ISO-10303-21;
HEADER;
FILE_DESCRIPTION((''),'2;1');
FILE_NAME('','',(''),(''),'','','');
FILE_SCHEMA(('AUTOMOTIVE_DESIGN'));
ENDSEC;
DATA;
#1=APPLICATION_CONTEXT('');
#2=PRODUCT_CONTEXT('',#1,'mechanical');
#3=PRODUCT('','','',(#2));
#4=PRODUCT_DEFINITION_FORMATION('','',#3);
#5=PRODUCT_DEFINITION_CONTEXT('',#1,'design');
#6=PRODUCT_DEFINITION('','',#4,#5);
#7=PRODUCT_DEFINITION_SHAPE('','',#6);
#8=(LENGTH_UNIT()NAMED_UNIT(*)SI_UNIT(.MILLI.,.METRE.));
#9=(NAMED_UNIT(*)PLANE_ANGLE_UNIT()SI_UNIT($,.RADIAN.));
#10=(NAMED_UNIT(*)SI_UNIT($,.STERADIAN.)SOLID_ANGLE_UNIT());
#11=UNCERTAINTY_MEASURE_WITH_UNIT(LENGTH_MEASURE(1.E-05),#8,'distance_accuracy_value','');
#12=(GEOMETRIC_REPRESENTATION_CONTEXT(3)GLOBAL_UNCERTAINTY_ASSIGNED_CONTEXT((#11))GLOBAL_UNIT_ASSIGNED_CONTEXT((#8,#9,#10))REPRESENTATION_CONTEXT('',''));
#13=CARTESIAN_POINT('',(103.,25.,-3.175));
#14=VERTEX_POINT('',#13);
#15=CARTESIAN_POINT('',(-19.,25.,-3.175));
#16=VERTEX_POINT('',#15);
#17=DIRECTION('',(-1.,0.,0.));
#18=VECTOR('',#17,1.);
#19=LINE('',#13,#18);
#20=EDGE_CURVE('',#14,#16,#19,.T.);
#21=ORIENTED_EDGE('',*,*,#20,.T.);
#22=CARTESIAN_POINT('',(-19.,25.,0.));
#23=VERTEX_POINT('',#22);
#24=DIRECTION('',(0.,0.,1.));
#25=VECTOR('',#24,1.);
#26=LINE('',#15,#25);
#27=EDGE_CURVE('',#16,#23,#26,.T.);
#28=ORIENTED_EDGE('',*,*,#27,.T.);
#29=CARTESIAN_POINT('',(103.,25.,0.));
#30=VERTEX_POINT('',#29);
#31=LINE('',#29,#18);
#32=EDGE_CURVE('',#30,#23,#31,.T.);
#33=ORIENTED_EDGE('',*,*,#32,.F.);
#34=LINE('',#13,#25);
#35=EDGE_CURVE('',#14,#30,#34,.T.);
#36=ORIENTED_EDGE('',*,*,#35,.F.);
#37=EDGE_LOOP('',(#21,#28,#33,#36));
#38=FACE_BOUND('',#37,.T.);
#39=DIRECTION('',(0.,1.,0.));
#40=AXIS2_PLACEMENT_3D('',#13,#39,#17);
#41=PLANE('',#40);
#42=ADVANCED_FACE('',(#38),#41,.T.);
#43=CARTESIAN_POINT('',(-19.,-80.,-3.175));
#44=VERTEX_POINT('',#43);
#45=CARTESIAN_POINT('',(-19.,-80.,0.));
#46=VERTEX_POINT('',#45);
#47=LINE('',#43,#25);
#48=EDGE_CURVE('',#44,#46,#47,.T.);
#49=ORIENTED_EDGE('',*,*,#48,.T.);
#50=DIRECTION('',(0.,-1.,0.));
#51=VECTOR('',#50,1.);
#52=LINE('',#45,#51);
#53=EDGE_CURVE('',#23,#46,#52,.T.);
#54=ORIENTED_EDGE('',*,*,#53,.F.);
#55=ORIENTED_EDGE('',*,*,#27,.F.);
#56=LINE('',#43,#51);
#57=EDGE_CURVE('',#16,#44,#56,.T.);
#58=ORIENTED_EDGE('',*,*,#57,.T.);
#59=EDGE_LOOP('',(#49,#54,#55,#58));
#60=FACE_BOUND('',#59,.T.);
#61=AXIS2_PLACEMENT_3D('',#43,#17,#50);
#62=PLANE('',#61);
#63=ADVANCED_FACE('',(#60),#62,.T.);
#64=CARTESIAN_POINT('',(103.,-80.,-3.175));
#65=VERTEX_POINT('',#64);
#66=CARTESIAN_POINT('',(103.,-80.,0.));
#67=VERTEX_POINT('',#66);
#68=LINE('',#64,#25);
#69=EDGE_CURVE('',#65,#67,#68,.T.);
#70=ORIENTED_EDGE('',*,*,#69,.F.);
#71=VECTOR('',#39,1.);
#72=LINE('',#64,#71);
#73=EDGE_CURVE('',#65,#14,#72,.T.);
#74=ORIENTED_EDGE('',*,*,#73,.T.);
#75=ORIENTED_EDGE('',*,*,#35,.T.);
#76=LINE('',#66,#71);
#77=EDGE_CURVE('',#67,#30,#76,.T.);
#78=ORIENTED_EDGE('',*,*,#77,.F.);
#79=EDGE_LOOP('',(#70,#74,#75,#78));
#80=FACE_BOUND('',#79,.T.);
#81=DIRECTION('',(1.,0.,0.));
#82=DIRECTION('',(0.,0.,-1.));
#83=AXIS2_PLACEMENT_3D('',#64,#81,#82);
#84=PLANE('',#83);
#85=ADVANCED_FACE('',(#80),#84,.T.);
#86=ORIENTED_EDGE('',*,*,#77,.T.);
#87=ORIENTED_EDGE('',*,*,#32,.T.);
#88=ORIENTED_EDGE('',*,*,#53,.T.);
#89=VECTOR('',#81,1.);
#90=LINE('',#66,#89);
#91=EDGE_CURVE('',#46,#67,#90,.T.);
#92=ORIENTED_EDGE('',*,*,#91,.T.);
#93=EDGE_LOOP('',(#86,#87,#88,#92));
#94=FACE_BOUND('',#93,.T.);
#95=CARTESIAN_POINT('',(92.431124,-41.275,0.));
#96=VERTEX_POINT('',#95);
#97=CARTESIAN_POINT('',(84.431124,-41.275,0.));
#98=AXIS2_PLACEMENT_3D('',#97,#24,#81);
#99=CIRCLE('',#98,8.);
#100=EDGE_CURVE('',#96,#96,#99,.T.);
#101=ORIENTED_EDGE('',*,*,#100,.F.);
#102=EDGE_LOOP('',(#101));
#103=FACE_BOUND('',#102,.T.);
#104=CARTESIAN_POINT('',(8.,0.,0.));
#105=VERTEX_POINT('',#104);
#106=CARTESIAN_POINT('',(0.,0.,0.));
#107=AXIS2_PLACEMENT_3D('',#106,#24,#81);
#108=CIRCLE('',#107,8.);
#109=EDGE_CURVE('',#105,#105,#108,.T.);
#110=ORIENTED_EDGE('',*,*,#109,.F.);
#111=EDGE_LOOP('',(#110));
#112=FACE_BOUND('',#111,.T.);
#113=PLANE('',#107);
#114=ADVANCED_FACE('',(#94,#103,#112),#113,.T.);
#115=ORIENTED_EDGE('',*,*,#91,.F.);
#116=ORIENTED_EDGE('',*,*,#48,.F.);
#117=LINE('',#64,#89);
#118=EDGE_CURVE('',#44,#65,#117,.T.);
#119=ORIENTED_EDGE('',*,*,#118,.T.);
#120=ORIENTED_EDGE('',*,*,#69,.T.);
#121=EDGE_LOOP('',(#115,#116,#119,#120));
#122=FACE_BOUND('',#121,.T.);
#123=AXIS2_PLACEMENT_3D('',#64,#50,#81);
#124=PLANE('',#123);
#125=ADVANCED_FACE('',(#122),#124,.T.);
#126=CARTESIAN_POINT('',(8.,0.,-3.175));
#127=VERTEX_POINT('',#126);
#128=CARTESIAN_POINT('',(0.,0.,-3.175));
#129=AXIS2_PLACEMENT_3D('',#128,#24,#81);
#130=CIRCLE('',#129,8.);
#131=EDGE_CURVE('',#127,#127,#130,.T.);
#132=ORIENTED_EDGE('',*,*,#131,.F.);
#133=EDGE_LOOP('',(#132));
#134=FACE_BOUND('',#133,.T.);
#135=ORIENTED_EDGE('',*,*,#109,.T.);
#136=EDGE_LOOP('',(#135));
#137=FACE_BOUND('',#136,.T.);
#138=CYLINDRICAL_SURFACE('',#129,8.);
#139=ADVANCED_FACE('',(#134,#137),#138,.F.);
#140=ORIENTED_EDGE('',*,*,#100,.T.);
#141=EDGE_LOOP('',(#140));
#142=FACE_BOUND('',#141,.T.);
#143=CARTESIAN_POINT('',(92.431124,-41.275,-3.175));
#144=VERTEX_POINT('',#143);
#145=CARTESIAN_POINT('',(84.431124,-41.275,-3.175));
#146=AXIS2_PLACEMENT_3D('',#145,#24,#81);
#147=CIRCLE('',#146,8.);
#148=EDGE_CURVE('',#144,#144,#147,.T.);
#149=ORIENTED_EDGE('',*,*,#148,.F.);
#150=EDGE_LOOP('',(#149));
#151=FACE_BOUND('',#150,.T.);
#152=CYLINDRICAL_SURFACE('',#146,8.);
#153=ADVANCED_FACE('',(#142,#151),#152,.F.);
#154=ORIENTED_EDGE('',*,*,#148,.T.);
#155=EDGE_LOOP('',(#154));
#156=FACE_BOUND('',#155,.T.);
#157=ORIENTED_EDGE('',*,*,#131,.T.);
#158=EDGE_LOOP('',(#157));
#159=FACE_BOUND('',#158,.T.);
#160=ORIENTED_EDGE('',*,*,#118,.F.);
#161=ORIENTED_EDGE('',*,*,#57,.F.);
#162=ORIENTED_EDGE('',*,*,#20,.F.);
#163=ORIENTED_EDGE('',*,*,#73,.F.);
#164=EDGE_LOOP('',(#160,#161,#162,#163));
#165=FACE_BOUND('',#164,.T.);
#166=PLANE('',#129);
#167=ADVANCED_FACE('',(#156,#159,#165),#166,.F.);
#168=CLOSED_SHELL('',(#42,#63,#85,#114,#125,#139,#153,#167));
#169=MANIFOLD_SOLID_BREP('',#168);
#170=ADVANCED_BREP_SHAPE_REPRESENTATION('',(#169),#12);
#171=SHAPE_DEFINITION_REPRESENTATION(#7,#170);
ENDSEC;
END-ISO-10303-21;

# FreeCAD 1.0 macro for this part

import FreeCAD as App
import Part
import Sketcher
from FreeCAD import Vector

doc = App.newDocument("Part")
body = doc.addObject("PartDesign::Body", "Body")

# Sketch on XY plane
sketch1 = doc.addObject("Sketcher::SketchObject", "Sketch")
body.addObject(sketch1)
sketch1.AttachmentSupport = (doc.XY_Plane, [""])
sketch1.MapMode = "FlatFace"
sketch1.addGeometry(Part.LineSegment(Vector(-19, 25, 0), Vector(-19, -80, 0)), False)
sketch1.addGeometry(Part.LineSegment(Vector(-19, -80, 0), Vector(103, -80, 0)), False)
sketch1.addGeometry(Part.LineSegment(Vector(103, -80, 0), Vector(103, 25, 0)), False)
sketch1.addGeometry(Part.LineSegment(Vector(103, 25, 0), Vector(-19, 25, 0)), False)
sketch1.addGeometry(Part.Circle(Vector(84, -41, 0), Vector(0, 0, 1), 8), False)
sketch1.addGeometry(Part.Circle(Vector(0, 0, 0), Vector(0, 0, 1), 8), False)
sketch1.addConstraint(Sketcher.Constraint("Coincident", 0, 2, 1, 1))
sketch1.addConstraint(Sketcher.Constraint("Coincident", 1, 2, 2, 1))
sketch1.addConstraint(Sketcher.Constraint("Coincident", 2, 2, 3, 1))
sketch1.addConstraint(Sketcher.Constraint("Coincident", 3, 2, 0, 1))
sketch1.addConstraint(Sketcher.Constraint("Vertical", 0))
sketch1.addConstraint(Sketcher.Constraint("Horizontal", 1))
sketch1.addConstraint(Sketcher.Constraint("Vertical", 2))
sketch1.addConstraint(Sketcher.Constraint("Horizontal", 3))
sketch1.addConstraint(Sketcher.Constraint("Coincident", 5, 3, -1, 1))
sketch1.addConstraint(Sketcher.Constraint("Equal", 4, 5))
sketch1.addConstraint(Sketcher.Constraint("Diameter", 4, 16.0))
sketch1.addConstraint(Sketcher.Constraint("DistanceX", 1, 1, 1, 2, 122.0))
sketch1.addConstraint(Sketcher.Constraint("DistanceY", 0, 2, 0, 1, 105.0))
sketch1.addConstraint(Sketcher.Constraint("DistanceX", 0, 2, -1, 1, 19.0))
sketch1.addConstraint(Sketcher.Constraint("DistanceY", 0, 2, -1, 1, 80.0))
sketch1.addConstraint(Sketcher.Constraint("DistanceY", 4, 3, -1, 1, 41.275))
sketch1.addConstraint(Sketcher.Constraint("DistanceX", -1, 1, 4, 3, 84.431124))
pad1 = doc.addObject("PartDesign::Pad", "Pad")
body.addObject(pad1)
pad1.Profile = sketch1
pad1.Length = 3.175
pad1.Reversed = True

doc.recompute()
